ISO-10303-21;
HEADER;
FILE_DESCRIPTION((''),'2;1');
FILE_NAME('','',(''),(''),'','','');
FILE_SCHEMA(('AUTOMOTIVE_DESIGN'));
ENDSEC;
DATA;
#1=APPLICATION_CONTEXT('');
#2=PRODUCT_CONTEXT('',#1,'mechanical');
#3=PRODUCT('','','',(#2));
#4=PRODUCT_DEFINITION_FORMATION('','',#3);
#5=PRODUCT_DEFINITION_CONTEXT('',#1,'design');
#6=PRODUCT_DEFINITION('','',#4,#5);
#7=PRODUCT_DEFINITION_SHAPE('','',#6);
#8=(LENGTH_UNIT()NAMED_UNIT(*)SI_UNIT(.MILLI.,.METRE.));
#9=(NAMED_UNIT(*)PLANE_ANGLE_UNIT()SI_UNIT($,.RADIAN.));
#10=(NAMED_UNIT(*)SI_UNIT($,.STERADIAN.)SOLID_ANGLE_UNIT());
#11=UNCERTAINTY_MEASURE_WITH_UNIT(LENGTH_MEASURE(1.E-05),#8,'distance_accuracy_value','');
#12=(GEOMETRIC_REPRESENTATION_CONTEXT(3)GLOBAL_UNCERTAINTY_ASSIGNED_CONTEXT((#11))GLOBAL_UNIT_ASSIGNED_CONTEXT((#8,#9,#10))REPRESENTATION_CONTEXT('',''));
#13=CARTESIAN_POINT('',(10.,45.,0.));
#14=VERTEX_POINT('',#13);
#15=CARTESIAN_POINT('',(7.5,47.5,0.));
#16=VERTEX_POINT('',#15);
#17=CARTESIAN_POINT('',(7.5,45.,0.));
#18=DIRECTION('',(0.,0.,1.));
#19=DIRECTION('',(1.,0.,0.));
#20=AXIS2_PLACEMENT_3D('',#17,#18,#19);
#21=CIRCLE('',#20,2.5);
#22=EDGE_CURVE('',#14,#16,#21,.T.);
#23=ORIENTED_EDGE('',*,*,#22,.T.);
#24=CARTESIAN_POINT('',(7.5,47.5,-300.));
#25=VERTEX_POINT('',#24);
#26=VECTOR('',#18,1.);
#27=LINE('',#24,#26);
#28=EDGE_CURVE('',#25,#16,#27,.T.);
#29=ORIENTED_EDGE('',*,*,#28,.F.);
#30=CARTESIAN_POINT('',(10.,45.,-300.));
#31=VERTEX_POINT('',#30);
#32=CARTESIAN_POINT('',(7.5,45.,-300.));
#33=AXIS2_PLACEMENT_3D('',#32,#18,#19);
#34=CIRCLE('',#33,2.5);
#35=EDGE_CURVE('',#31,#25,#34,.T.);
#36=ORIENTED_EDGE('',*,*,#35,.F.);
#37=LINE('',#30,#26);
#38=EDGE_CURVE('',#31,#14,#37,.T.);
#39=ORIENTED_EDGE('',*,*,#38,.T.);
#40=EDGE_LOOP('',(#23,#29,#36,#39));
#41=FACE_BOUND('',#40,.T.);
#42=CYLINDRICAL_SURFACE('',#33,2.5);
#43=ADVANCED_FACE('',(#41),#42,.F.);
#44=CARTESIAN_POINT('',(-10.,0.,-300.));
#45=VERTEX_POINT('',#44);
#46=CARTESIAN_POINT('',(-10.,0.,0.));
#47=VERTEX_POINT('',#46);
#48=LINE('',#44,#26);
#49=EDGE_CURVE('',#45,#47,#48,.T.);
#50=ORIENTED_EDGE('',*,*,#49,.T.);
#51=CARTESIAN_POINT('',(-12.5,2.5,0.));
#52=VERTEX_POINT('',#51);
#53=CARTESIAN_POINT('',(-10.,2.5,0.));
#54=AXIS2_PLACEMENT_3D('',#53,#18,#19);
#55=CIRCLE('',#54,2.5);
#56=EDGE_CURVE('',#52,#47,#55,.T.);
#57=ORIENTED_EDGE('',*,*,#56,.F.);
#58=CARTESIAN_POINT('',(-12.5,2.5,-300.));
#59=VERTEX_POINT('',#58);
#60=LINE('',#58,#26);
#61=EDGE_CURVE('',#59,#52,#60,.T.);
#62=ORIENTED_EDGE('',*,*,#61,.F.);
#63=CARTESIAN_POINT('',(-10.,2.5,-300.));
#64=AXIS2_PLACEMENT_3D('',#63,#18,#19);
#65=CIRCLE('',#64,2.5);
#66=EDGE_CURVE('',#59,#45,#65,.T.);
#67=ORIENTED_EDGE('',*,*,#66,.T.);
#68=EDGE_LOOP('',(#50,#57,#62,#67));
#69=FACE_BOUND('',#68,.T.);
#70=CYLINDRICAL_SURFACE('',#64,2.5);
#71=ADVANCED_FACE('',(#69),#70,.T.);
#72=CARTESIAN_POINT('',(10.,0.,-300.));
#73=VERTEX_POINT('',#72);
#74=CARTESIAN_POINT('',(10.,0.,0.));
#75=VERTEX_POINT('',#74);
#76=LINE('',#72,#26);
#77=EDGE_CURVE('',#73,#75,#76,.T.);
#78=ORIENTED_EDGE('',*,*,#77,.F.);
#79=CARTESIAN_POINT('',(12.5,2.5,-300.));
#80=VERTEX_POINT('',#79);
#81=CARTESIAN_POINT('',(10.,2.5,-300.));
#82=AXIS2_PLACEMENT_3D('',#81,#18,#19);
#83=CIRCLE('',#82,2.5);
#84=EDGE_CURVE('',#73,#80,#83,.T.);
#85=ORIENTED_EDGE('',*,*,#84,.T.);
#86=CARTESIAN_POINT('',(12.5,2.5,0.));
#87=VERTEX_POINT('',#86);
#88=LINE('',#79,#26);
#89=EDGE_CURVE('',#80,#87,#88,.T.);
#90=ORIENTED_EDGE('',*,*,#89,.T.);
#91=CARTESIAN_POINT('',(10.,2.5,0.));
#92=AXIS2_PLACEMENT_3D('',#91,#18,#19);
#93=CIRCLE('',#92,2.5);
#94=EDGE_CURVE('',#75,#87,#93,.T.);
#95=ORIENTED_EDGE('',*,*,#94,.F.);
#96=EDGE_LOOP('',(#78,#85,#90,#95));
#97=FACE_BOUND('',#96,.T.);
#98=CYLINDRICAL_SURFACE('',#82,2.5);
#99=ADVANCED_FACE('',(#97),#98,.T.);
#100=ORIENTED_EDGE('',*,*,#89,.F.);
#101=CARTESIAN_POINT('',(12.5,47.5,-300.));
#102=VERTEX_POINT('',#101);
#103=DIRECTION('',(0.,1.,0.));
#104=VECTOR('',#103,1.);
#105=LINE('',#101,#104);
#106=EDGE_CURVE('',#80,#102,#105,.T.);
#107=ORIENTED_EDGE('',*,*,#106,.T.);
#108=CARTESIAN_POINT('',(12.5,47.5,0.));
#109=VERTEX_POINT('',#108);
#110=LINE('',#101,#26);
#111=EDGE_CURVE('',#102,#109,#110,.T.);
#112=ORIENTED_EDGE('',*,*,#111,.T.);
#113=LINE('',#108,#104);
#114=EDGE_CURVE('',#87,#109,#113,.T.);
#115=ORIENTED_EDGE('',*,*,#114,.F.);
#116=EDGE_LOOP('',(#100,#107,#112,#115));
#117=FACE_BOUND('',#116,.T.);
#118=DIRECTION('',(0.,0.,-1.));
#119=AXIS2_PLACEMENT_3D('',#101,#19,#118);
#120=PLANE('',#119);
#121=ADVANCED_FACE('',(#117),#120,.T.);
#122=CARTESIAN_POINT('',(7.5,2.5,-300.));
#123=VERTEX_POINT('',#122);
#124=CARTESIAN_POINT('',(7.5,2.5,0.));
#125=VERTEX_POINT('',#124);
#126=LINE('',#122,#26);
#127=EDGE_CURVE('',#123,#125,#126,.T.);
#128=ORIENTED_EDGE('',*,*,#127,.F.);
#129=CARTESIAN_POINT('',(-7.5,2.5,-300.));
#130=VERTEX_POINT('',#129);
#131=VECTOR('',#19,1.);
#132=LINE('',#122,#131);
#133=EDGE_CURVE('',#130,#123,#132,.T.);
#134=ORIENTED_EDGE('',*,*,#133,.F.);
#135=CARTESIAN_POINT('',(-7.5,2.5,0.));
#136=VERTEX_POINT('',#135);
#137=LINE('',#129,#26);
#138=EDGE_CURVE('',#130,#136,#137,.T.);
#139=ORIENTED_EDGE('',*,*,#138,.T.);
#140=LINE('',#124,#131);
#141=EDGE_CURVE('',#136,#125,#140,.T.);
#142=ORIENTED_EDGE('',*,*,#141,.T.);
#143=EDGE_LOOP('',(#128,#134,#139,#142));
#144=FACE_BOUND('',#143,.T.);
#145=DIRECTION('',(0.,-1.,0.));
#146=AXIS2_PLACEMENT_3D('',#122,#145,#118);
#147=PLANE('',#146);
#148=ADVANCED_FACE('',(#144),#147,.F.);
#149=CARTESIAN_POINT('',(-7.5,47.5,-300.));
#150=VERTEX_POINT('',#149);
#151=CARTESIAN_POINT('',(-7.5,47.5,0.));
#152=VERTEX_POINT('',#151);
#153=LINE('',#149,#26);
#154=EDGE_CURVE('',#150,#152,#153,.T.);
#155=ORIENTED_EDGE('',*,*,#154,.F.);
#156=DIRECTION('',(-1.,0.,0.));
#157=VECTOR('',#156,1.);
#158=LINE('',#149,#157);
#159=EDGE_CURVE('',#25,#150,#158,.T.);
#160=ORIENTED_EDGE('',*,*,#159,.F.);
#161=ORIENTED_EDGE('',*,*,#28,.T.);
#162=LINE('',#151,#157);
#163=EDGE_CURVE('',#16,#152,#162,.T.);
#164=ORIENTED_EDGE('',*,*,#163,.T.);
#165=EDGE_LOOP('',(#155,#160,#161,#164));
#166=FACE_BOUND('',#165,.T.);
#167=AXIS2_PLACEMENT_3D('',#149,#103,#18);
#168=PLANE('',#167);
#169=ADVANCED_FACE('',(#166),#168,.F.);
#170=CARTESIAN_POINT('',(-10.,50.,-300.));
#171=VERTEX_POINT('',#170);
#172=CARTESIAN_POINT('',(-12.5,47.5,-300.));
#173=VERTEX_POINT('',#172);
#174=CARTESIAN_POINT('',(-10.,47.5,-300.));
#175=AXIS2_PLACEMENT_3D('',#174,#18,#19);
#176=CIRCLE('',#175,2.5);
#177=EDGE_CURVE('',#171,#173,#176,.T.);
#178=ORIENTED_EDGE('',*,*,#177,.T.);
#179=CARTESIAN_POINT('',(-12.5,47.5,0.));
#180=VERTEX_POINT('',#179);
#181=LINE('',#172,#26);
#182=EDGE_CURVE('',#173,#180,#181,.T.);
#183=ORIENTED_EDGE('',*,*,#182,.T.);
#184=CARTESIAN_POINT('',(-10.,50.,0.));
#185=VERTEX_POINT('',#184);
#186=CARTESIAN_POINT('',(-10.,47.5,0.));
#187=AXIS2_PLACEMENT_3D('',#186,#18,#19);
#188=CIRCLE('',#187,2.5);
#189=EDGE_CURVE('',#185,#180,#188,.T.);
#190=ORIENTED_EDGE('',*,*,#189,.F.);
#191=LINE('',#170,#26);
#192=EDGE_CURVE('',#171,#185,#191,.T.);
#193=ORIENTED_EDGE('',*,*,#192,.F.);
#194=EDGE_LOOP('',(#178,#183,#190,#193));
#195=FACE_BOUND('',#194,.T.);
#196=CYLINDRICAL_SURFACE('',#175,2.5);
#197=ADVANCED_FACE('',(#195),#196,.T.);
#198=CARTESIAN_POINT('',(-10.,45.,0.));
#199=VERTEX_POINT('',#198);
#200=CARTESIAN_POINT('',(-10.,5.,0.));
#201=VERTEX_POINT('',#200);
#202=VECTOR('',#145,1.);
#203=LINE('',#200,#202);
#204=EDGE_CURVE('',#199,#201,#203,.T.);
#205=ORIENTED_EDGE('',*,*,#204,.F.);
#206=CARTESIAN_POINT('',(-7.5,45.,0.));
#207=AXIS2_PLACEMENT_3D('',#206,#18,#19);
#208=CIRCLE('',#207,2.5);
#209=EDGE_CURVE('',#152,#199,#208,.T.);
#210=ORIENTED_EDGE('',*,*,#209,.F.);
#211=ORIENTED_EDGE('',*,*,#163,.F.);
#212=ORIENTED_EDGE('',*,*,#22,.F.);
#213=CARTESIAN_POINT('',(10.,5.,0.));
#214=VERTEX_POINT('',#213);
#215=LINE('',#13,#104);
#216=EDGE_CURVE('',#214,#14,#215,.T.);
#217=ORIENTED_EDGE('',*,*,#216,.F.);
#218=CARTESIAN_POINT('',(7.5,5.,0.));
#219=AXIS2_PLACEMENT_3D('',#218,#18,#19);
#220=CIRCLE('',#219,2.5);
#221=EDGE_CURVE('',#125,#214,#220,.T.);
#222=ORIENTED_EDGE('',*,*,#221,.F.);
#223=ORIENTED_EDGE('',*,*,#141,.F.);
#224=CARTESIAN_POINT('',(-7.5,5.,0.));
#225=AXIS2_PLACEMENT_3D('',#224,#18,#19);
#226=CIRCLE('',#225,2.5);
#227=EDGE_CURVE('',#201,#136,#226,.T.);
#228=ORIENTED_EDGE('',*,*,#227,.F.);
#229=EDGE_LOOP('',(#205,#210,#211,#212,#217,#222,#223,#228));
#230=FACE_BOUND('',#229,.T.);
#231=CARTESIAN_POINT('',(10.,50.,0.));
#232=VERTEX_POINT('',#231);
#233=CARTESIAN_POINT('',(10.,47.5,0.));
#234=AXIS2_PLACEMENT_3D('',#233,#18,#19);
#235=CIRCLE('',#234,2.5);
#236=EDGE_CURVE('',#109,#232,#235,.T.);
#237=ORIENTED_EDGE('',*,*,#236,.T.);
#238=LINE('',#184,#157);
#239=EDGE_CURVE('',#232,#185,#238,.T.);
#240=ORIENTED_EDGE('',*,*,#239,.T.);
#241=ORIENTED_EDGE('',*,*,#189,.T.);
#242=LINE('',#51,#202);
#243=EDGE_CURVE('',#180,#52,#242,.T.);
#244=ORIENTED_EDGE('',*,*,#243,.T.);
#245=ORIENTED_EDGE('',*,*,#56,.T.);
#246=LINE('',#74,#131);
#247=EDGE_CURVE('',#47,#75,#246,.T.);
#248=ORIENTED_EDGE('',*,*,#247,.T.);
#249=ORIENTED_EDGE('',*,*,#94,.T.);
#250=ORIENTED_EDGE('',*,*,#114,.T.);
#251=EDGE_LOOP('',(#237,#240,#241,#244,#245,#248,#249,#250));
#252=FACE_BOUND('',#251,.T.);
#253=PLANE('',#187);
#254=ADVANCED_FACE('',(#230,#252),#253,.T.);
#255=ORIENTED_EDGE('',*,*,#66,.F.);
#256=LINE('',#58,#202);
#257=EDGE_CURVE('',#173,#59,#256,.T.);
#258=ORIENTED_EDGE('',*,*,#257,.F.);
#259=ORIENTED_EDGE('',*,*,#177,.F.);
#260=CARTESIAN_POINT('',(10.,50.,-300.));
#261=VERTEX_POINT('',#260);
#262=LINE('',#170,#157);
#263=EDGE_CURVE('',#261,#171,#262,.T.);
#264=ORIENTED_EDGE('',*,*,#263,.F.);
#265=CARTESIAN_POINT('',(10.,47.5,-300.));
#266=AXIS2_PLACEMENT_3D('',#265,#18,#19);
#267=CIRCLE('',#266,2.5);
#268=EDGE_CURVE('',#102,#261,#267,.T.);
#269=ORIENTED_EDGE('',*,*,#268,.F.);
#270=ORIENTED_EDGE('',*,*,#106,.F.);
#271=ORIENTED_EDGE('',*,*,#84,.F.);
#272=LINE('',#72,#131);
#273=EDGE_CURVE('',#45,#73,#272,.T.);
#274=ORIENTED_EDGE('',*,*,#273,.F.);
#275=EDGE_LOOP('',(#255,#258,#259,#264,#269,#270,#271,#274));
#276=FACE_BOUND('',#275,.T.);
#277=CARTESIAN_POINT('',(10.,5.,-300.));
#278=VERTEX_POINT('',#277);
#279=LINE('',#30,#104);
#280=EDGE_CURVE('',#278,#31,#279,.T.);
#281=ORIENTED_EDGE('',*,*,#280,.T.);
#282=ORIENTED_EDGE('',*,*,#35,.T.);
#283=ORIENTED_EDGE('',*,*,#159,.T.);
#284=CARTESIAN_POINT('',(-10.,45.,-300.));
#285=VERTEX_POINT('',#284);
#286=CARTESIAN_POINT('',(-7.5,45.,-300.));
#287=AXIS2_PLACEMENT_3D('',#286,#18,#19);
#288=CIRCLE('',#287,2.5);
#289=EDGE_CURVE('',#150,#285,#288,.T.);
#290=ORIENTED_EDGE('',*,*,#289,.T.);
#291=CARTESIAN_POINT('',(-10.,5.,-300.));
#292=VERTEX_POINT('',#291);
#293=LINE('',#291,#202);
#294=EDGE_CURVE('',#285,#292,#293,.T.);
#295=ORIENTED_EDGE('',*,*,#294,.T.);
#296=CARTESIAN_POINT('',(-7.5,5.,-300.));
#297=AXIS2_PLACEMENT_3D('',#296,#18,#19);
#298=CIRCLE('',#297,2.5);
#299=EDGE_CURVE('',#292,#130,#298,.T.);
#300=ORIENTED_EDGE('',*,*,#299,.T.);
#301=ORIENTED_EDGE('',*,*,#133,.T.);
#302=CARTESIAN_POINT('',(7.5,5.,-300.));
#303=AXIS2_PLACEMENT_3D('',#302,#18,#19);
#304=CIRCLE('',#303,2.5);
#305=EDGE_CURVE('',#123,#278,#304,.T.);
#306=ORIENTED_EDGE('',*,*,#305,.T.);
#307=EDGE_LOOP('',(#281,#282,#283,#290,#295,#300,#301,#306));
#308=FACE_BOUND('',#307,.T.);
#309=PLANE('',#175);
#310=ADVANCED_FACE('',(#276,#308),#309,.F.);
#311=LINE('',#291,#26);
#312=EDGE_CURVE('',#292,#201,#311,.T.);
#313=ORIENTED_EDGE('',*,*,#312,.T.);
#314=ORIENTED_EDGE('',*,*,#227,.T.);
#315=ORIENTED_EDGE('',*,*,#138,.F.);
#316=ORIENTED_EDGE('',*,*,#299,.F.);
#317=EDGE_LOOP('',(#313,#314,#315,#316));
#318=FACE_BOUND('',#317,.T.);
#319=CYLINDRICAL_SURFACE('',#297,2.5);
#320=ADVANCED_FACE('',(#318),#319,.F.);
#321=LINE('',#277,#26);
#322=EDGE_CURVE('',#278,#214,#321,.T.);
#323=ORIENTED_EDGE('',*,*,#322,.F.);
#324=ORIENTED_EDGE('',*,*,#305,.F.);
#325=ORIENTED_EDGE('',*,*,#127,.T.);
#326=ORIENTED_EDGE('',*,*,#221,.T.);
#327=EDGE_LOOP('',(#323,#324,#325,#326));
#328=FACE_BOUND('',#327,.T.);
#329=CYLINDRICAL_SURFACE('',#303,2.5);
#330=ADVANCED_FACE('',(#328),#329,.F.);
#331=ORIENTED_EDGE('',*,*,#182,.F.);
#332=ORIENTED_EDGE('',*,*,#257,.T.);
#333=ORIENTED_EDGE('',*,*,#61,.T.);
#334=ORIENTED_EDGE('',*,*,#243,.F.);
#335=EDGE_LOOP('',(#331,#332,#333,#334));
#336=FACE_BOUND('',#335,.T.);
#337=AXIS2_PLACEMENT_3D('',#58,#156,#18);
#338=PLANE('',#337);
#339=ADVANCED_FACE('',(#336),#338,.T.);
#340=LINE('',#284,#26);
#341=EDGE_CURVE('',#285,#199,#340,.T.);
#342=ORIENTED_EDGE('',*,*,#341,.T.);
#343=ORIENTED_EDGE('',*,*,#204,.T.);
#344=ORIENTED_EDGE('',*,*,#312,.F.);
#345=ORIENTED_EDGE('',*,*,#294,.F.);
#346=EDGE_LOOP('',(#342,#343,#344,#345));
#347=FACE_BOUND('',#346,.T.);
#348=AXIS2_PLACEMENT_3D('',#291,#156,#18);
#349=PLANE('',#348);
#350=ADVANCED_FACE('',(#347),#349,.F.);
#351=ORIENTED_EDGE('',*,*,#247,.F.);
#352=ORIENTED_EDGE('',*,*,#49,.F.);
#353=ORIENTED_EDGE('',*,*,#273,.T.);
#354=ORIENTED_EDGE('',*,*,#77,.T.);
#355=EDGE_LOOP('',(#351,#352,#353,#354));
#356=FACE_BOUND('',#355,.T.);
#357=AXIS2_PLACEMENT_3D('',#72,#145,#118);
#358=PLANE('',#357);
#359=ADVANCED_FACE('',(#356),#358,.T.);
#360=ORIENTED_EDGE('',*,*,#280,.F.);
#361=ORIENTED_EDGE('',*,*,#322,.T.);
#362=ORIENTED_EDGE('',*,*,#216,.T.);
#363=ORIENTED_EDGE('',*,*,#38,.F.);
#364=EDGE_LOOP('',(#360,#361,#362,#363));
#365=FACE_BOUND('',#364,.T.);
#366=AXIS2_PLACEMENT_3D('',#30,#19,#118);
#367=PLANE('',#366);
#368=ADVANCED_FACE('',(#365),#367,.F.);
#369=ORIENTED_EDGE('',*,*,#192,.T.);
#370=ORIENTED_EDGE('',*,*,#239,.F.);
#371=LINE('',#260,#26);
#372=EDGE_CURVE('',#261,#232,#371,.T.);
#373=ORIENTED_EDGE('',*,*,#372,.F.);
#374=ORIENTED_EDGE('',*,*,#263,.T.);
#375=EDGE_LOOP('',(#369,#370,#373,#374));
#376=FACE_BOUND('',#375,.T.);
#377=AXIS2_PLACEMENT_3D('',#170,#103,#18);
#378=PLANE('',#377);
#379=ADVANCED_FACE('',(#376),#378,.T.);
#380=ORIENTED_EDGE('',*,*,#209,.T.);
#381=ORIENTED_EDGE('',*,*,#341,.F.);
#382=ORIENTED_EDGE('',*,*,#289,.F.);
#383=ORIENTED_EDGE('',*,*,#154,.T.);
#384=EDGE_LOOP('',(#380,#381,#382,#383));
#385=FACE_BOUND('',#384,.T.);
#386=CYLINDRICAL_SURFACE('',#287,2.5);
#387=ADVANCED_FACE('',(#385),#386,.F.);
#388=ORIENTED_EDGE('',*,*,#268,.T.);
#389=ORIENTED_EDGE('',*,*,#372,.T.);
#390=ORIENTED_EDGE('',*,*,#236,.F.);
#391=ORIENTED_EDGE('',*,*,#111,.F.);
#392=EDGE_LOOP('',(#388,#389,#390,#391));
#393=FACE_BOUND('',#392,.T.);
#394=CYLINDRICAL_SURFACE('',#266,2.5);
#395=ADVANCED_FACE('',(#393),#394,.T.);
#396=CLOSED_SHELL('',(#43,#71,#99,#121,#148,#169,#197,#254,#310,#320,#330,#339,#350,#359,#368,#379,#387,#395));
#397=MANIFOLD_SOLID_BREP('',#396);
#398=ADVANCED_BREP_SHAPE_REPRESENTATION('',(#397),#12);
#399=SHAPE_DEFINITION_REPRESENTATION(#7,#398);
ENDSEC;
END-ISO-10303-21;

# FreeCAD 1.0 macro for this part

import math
import FreeCAD as App
import Part
import Sketcher

V = App.Vector

doc = App.newDocument("Part")
body = doc.addObject("PartDesign::Body", "Body")

# Sketch on XY plane
sketch1 = body.newObject("Sketcher::SketchObject", "Sketch")
sketch1.AttachmentSupport = (doc.getObject("XY_Plane"), [""])
sketch1.MapMode = "FlatFace"
sketch1.addGeometry([
    Part.LineSegment(V(10, 50, 0), V(-10, 50, 0)),  # 0
    Part.ArcOfCircle(Part.Circle(V(-10, 47.5, 0), V(0, 0, 1), 2.5), math.radians(90), math.radians(180)),  # 1
    Part.LineSegment(V(-12.5, 47.5, 0), V(-12.5, 2.5, 0)),  # 2
    Part.ArcOfCircle(Part.Circle(V(-10, 2.5, 0), V(0, 0, 1), 2.5), math.radians(180), math.radians(270)),  # 3
    Part.LineSegment(V(-10, 0, 0), V(10, 0, 0)),  # 4
    Part.ArcOfCircle(Part.Circle(V(10, 2.5, 0), V(0, 0, 1), 2.5), math.radians(-90), math.radians(0)),  # 5
    Part.LineSegment(V(12.5, 2.5, 0), V(12.5, 47.5, 0)),  # 6
    Part.ArcOfCircle(Part.Circle(V(10, 47.5, 0), V(0, 0, 1), 2.5), math.radians(0), math.radians(90)),  # 7
    Part.LineSegment(V(-7.5, 47.5, 0), V(7.5, 47.5, 0)),  # 8
    Part.ArcOfCircle(Part.Circle(V(7.5, 45, 0), V(0, 0, 1), 2.5), math.radians(0), math.radians(90)),  # 9
    Part.LineSegment(V(10, 45, 0), V(10, 5, 0)),  # 10
    Part.ArcOfCircle(Part.Circle(V(7.5, 5, 0), V(0, 0, 1), 2.5), math.radians(-90), math.radians(0)),  # 11
    Part.LineSegment(V(7.5, 2.5, 0), V(-7.5, 2.5, 0)),  # 12
    Part.ArcOfCircle(Part.Circle(V(-7.5, 5, 0), V(0, 0, 1), 2.5), math.radians(180), math.radians(270)),  # 13
    Part.LineSegment(V(-10, 5, 0), V(-10, 45, 0)),  # 14
    Part.ArcOfCircle(Part.Circle(V(-7.5, 45, 0), V(0, 0, 1), 2.5), math.radians(90), math.radians(180)),  # 15
], False)
sketch1.addConstraint([
    Sketcher.Constraint("Tangent", 0, 2, 1, 1),
    Sketcher.Constraint("Tangent", 1, 2, 2, 1),
    Sketcher.Constraint("Tangent", 2, 2, 3, 1),
    Sketcher.Constraint("Tangent", 3, 2, 4, 1),
    Sketcher.Constraint("Tangent", 4, 2, 5, 1),
    Sketcher.Constraint("Tangent", 5, 2, 6, 1),
    Sketcher.Constraint("Tangent", 6, 2, 7, 1),
    Sketcher.Constraint("Tangent", 7, 2, 0, 1),
    Sketcher.Constraint("Tangent", 8, 2, 9, 2),
    Sketcher.Constraint("Tangent", 9, 1, 10, 1),
    Sketcher.Constraint("Tangent", 10, 2, 11, 2),
    Sketcher.Constraint("Tangent", 11, 1, 12, 1),
    Sketcher.Constraint("Tangent", 12, 2, 13, 2),
    Sketcher.Constraint("Tangent", 13, 1, 14, 1),
    Sketcher.Constraint("Tangent", 14, 2, 15, 2),
    Sketcher.Constraint("Tangent", 15, 1, 8, 1),
    Sketcher.Constraint("Horizontal", 0),
    Sketcher.Constraint("Vertical", 2),
    Sketcher.Constraint("Horizontal", 4),
    Sketcher.Constraint("Vertical", 6),
    Sketcher.Constraint("Horizontal", 8),
    Sketcher.Constraint("Vertical", 10),
    Sketcher.Constraint("Horizontal", 12),
    Sketcher.Constraint("Vertical", 14),
    Sketcher.Constraint("Equal", 1, 3),
    Sketcher.Constraint("Equal", 3, 5),
    Sketcher.Constraint("Equal", 5, 7),
    Sketcher.Constraint("Equal", 7, 9),
    Sketcher.Constraint("Equal", 9, 11),
    Sketcher.Constraint("Equal", 11, 13),
    Sketcher.Constraint("Equal", 13, 15),
    Sketcher.Constraint("Symmetric", 3, 2, 4, 2, -1, 1),
    Sketcher.Constraint("Horizontal", 6, 2, 8, 2),
    Sketcher.Constraint("Horizontal", 5, 2, 11, 1),
    Sketcher.Constraint("Vertical", 7, 2, 9, 1),
    Sketcher.Constraint("Vertical", 3, 2, 13, 1),
    Sketcher.Constraint("Radius", 1, 2.5),
    Sketcher.Constraint("DistanceX", 0, 2, 0, 1, 20.0),
    Sketcher.Constraint("DistanceY", 2, 2, 2, 1, 45.0),
])
pad1 = body.newObject("PartDesign::Pad", "Pad")
pad1.Profile = sketch1
pad1.Length = 300
pad1.Reversed = True

doc.recompute()
